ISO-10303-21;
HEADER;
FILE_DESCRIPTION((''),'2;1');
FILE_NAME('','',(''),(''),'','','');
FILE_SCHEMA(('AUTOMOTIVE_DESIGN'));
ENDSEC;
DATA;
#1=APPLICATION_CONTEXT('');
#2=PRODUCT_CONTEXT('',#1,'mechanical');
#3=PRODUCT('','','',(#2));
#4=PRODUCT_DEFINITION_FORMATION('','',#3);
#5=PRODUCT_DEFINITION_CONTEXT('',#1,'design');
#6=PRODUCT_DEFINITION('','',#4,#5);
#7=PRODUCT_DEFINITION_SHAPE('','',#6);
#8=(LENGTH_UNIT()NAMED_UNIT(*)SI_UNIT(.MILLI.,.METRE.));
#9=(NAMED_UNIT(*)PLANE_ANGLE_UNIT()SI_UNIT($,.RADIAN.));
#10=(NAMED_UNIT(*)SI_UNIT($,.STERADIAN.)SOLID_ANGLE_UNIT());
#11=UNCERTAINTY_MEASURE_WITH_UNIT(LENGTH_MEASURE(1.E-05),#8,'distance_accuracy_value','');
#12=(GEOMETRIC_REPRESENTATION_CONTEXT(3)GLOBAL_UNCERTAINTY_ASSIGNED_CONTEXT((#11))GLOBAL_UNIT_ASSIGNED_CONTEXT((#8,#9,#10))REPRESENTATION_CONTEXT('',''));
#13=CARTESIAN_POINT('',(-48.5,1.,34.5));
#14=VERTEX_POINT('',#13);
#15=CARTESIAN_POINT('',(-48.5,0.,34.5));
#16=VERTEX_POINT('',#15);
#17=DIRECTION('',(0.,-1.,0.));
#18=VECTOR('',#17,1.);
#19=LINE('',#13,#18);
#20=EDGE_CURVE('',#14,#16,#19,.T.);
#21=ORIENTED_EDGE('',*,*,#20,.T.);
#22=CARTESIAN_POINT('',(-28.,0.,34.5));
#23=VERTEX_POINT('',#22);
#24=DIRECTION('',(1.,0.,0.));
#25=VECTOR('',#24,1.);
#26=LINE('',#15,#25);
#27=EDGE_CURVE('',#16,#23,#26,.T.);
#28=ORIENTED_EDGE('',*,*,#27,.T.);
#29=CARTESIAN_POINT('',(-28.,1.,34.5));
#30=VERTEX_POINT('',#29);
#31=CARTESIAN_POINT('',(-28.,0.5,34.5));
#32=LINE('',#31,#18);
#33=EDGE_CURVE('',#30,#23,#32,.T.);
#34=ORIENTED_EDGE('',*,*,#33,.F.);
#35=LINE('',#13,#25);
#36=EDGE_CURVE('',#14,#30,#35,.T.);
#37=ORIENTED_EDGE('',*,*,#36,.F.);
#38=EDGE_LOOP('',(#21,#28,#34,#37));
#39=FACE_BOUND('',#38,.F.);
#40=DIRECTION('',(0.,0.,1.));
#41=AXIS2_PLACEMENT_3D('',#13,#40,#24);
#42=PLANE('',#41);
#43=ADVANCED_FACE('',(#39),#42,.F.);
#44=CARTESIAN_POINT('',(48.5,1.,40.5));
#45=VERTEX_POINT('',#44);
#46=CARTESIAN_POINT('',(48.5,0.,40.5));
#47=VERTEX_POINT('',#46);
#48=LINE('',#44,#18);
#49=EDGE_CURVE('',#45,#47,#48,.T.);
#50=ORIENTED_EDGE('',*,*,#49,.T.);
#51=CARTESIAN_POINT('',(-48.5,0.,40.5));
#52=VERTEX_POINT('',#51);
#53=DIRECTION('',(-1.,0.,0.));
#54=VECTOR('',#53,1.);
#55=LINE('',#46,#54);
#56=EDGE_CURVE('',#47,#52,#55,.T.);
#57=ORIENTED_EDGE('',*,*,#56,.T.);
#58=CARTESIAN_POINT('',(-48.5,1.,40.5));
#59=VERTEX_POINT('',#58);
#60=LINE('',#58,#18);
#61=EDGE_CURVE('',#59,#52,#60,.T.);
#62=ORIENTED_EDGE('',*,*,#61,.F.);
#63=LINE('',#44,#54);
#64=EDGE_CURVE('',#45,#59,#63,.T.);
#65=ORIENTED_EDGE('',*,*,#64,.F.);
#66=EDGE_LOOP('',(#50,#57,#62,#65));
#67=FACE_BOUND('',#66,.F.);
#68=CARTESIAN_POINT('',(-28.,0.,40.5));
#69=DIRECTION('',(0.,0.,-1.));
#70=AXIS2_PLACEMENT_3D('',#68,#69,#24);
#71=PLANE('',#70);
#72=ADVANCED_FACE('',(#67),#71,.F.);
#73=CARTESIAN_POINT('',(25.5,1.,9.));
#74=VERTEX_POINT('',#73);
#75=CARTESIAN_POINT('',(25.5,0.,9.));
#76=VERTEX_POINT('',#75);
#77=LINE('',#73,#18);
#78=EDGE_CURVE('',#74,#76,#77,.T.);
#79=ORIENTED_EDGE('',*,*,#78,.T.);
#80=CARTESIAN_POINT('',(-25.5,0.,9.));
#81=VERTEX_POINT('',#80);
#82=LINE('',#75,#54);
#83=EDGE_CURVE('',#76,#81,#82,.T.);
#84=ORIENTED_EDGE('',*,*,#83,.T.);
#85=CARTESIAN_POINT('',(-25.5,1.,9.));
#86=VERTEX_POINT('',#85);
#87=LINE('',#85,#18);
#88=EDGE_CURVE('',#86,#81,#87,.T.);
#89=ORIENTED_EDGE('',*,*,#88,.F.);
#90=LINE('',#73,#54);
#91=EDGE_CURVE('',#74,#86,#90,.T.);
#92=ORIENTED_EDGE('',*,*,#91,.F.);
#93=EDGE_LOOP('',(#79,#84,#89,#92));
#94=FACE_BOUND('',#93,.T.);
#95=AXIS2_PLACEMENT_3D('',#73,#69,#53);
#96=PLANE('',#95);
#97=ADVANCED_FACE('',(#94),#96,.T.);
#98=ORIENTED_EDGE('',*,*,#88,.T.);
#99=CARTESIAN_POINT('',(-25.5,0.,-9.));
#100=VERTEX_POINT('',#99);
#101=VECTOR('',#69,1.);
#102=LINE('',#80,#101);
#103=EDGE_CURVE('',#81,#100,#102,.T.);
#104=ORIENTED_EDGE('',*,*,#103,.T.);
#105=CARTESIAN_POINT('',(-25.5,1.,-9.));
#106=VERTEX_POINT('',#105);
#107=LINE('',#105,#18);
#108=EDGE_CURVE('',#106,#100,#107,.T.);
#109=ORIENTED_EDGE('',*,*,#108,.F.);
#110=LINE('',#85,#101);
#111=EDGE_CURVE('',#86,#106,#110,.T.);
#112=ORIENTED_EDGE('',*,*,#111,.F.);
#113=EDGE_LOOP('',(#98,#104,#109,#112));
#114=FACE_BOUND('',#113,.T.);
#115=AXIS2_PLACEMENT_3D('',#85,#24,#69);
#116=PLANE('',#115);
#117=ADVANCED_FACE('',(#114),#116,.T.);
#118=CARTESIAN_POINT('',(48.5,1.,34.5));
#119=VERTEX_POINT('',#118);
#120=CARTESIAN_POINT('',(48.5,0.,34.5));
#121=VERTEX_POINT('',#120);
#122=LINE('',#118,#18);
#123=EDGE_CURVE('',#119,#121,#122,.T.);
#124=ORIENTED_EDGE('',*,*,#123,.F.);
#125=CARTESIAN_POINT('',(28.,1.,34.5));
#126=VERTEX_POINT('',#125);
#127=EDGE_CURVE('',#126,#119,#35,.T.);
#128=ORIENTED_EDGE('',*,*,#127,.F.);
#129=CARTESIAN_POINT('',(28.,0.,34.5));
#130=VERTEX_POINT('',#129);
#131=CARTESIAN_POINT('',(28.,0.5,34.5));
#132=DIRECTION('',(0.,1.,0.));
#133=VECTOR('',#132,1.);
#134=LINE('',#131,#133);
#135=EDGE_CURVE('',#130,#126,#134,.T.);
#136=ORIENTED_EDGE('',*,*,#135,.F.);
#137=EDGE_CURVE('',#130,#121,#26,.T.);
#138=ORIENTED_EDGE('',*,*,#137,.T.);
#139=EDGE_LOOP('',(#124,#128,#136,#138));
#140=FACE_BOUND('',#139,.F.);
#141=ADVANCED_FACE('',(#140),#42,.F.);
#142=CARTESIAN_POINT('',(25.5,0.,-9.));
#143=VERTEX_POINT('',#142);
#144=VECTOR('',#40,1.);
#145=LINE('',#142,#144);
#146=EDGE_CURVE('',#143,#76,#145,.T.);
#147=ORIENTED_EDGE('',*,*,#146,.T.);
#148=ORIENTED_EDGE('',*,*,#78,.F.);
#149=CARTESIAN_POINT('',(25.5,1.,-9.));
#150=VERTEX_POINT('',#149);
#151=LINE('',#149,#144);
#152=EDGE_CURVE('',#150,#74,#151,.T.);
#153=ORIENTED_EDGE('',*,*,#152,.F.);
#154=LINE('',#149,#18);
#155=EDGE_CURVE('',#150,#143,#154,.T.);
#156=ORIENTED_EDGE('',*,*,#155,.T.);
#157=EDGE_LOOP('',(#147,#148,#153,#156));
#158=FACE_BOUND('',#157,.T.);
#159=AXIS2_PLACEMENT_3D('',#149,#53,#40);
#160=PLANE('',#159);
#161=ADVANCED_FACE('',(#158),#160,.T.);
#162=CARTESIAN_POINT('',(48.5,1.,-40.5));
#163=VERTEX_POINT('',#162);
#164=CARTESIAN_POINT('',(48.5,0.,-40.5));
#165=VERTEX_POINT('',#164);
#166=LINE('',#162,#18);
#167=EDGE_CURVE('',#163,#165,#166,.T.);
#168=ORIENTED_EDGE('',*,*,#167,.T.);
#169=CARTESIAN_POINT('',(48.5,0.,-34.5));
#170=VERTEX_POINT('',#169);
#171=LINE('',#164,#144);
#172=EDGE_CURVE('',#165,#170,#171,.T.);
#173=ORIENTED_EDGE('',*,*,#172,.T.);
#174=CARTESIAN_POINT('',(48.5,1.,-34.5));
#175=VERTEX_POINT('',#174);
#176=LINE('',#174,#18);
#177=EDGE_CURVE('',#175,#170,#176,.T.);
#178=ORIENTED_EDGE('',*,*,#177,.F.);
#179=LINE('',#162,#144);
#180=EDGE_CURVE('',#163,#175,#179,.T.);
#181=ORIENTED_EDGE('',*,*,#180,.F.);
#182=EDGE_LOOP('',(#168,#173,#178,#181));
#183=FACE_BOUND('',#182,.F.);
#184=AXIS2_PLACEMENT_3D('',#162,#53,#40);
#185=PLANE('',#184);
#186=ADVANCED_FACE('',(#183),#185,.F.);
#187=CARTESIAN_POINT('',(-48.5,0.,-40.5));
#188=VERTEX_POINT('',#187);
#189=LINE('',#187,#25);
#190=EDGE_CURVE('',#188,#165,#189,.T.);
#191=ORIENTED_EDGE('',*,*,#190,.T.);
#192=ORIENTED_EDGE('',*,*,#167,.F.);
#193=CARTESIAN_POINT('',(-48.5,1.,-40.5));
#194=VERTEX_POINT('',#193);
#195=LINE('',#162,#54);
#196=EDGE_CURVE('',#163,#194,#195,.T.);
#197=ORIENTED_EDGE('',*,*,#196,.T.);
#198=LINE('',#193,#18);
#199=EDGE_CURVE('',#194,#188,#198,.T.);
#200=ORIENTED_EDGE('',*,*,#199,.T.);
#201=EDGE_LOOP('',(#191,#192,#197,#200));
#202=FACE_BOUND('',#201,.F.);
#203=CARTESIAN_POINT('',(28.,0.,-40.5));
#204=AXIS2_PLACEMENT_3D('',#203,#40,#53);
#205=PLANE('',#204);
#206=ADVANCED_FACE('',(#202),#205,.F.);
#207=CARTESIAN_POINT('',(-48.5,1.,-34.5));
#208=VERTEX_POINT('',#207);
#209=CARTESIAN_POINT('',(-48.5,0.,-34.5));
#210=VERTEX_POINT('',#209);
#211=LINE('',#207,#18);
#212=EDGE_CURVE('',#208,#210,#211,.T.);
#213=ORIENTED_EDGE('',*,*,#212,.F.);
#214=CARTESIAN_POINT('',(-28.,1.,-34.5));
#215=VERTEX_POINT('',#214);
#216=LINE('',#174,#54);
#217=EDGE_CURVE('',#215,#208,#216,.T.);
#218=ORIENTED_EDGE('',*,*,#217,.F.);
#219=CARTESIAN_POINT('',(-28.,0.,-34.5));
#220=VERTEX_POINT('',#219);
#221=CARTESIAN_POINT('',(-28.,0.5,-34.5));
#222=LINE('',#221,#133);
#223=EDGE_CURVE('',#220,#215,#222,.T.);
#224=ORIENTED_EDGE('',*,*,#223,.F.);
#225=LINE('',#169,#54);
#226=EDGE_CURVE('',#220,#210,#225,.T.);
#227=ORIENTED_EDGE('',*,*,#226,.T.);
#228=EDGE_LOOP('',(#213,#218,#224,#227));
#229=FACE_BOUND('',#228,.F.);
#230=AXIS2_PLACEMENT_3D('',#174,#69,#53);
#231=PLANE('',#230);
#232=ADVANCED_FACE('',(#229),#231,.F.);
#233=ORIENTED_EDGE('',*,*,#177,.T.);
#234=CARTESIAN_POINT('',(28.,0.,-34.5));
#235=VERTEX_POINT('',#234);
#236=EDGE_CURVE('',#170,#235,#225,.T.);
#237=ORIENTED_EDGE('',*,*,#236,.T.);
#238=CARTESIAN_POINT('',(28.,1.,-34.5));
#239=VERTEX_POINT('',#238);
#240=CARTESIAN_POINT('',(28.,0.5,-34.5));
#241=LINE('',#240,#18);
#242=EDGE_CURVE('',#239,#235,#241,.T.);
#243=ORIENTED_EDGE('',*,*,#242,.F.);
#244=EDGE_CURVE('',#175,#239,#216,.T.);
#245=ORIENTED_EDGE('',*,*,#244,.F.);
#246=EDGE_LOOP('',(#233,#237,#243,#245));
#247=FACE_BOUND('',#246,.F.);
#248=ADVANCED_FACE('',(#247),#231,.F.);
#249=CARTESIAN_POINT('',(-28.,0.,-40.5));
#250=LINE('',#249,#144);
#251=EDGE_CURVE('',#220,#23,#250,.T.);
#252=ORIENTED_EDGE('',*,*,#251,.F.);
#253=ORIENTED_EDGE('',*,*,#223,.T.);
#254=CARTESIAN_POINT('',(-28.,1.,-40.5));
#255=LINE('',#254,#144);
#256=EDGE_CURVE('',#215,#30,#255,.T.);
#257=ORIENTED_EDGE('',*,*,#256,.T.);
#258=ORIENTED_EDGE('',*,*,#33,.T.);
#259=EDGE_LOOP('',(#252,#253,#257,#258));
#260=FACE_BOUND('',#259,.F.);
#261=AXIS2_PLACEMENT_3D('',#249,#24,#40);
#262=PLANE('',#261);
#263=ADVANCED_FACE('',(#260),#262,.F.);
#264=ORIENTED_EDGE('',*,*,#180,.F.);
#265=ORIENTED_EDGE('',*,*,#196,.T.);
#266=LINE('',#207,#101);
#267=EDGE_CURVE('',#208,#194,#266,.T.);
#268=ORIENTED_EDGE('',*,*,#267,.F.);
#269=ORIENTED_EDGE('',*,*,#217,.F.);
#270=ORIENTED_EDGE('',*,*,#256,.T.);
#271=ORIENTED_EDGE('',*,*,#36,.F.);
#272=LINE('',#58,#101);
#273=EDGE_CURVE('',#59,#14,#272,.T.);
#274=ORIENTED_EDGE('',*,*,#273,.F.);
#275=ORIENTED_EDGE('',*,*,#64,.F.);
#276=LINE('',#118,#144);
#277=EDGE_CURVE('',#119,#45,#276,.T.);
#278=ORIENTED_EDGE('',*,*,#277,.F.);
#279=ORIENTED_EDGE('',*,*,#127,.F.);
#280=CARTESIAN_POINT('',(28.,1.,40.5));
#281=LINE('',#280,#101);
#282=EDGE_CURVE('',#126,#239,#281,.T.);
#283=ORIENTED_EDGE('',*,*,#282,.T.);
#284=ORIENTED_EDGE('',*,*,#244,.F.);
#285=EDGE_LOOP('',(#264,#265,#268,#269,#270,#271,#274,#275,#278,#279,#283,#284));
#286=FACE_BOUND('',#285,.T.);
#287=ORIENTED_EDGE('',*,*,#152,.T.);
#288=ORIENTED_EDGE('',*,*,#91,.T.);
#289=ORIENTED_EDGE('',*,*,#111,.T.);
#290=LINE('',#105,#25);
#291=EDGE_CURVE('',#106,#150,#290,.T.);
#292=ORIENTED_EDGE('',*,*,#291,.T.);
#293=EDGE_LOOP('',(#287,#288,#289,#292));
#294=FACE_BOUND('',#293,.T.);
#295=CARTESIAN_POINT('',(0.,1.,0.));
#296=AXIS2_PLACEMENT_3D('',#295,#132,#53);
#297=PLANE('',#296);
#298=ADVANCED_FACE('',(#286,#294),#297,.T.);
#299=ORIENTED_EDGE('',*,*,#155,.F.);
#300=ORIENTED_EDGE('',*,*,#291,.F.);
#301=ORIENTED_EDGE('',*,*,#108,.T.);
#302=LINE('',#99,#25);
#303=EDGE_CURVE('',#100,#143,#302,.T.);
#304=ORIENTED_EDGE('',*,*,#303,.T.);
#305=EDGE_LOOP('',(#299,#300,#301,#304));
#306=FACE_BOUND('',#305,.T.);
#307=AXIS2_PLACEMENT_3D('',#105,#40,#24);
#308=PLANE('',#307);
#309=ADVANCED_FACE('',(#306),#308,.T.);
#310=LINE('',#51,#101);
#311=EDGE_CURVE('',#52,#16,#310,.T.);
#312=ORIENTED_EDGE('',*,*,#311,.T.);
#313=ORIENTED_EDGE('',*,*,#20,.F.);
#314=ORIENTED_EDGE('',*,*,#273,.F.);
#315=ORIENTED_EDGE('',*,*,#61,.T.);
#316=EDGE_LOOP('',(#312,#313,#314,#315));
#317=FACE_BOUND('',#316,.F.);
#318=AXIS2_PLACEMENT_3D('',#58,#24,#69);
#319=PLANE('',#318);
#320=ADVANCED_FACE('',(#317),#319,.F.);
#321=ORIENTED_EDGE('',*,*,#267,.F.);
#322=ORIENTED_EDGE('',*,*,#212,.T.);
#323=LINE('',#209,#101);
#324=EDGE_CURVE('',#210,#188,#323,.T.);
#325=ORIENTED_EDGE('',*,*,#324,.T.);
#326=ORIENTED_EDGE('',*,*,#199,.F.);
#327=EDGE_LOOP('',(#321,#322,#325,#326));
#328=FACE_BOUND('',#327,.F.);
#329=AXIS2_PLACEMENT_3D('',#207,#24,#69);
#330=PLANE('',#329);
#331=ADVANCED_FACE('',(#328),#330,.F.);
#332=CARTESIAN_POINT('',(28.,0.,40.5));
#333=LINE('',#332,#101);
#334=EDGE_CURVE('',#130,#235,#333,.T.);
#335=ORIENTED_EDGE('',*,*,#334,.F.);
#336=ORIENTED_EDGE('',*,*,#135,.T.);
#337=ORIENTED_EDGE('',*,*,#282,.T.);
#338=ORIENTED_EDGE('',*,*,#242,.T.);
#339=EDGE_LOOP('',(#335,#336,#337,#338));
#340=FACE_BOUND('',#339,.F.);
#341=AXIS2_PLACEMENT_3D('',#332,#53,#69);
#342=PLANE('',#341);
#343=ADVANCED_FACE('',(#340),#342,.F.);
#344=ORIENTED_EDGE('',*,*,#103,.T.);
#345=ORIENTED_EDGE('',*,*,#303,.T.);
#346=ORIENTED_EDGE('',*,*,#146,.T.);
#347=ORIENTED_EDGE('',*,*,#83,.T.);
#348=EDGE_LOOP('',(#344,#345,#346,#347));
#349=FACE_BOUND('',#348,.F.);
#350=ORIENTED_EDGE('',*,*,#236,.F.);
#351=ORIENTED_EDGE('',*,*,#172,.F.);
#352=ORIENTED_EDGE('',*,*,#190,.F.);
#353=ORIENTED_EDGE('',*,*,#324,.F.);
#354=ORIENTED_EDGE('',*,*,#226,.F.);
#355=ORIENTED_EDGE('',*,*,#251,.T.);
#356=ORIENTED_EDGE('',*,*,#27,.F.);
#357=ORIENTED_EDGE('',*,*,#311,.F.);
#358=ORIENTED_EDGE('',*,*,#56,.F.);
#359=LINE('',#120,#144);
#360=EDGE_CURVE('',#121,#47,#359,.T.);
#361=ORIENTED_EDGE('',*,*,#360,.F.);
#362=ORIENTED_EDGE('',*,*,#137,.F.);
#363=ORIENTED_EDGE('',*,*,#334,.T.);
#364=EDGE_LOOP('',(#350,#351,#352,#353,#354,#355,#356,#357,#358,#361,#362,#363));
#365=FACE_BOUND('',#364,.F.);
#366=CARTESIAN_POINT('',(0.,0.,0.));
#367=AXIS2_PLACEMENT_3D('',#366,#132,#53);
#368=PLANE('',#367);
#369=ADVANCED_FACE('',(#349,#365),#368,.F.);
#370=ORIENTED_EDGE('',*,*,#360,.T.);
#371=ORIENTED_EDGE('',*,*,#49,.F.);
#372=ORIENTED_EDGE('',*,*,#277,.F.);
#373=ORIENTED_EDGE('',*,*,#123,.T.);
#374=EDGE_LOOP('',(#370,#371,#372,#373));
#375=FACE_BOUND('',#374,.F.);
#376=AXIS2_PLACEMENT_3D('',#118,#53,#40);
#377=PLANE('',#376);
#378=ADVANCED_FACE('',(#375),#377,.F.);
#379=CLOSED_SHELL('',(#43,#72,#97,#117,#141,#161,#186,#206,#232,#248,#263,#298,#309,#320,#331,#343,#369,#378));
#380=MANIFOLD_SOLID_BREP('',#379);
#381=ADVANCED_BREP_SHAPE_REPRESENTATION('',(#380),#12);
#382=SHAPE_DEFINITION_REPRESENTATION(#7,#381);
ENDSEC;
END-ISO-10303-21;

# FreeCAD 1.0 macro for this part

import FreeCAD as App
import Part
import Sketcher
from FreeCAD import Vector
Q = App.Units.Quantity

doc = App.newDocument("Part")
params = doc.addObject("Spreadsheet::Sheet", "Params")
for row, (alias, value) in enumerate([
    ("sketch1_width", "56 mm"),
    ("sketch1_height", "81 mm"),
    ("pad1_length", "1 mm"),
    ("sketch2_width", "51 mm"),
    ("sketch2_height", "18 mm"),
    ("pocket1_length", "1 mm"),
    ("sketch3_width", "97 mm"),
    ("sketch3_height", "6 mm"),
    ("pad2_length", "1 mm"),
], start=1):
    params.set(f"A{row}", alias)
    params.set(f"B{row}", "=" + value)
    params.setAlias(f"B{row}", alias)

body = doc.addObject("PartDesign::Body", "Body")

sketch1 = doc.addObject("Sketcher::SketchObject", "Sketch")
body.addObject(sketch1)
sketch1.AttachmentSupport = (doc.XZ_Plane, [""])
sketch1.MapMode = "FlatFace"
sketch1.addGeometry(Part.LineSegment(Vector(28, 40, 0), Vector(28, -40, 0)), False)
sketch1.addGeometry(Part.LineSegment(Vector(28, -40, 0), Vector(-28, -40, 0)), False)
sketch1.addGeometry(Part.LineSegment(Vector(-28, -40, 0), Vector(-28, 40, 0)), False)
sketch1.addGeometry(Part.LineSegment(Vector(-28, 40, 0), Vector(28, 40, 0)), False)
sketch1.addConstraint(Sketcher.Constraint("Coincident", 0, 2, 1, 1))
sketch1.addConstraint(Sketcher.Constraint("Coincident", 1, 2, 2, 1))
sketch1.addConstraint(Sketcher.Constraint("Coincident", 2, 2, 3, 1))
sketch1.addConstraint(Sketcher.Constraint("Coincident", 3, 2, 0, 1))
sketch1.addConstraint(Sketcher.Constraint("Vertical", 0))
sketch1.addConstraint(Sketcher.Constraint("Horizontal", 1))
sketch1.addConstraint(Sketcher.Constraint("Vertical", 2))
sketch1.addConstraint(Sketcher.Constraint("Horizontal", 3))
sketch1.addConstraint(Sketcher.Constraint("Symmetric", 0, 2, 2, 2, -1, 1))
sketch1.addConstraint(Sketcher.Constraint("DistanceX", 1, 2, 1, 1, Q("56 mm")))
sketch1.addConstraint(Sketcher.Constraint("DistanceY", 0, 2, 0, 1, Q("81 mm")))
sketch1.setExpression("Constraints[9]", "Params.sketch1_width")
sketch1.setExpression("Constraints[10]", "Params.sketch1_height")
pad1 = doc.addObject("PartDesign::Pad", "Pad")
body.addObject(pad1)
pad1.Profile = sketch1
pad1.setExpression("Length", "Params.pad1_length")
pad1.Reversed = True

sketch2 = doc.addObject("Sketcher::SketchObject", "Sketch001")
body.addObject(sketch2)
sketch2.AttachmentSupport = (doc.XZ_Plane, [""])
sketch2.MapMode = "FlatFace"
sketch2.AttachmentOffset = App.Placement(Vector(0, 0, -1), App.Rotation())
sketch2.addGeometry(Part.LineSegment(Vector(26, -9, 0), Vector(-26, -9, 0)), False)
sketch2.addGeometry(Part.LineSegment(Vector(-26, -9, 0), Vector(-26, 9, 0)), False)
sketch2.addGeometry(Part.LineSegment(Vector(-26, 9, 0), Vector(26, 9, 0)), False)
sketch2.addGeometry(Part.LineSegment(Vector(26, 9, 0), Vector(26, -9, 0)), False)
sketch2.addConstraint(Sketcher.Constraint("Coincident", 0, 2, 1, 1))
sketch2.addConstraint(Sketcher.Constraint("Coincident", 1, 2, 2, 1))
sketch2.addConstraint(Sketcher.Constraint("Coincident", 2, 2, 3, 1))
sketch2.addConstraint(Sketcher.Constraint("Coincident", 3, 2, 0, 1))
sketch2.addConstraint(Sketcher.Constraint("Horizontal", 0))
sketch2.addConstraint(Sketcher.Constraint("Vertical", 1))
sketch2.addConstraint(Sketcher.Constraint("Horizontal", 2))
sketch2.addConstraint(Sketcher.Constraint("Vertical", 3))
sketch2.addConstraint(Sketcher.Constraint("Symmetric", 0, 2, 2, 2, -1, 1))
sketch2.addConstraint(Sketcher.Constraint("DistanceX", 0, 2, 0, 1, Q("51 mm")))
sketch2.addConstraint(Sketcher.Constraint("DistanceY", 1, 1, 1, 2, Q("18 mm")))
sketch2.setExpression("Constraints[9]", "Params.sketch2_width")
sketch2.setExpression("Constraints[10]", "Params.sketch2_height")
pocket1 = doc.addObject("PartDesign::Pocket", "Pocket")
body.addObject(pocket1)
pocket1.Profile = sketch2
pocket1.setExpression("Length", "Params.pocket1_length")
pocket1.Reversed = True

sketch3 = doc.addObject("Sketcher::SketchObject", "Sketch002")
body.addObject(sketch3)
sketch3.AttachmentSupport = (doc.XZ_Plane, [""])
sketch3.MapMode = "FlatFace"
sketch3.AttachmentOffset = App.Placement(Vector(0, 0, -1), App.Rotation())
sketch3.addGeometry(Part.LineSegment(Vector(48, 34, 0), Vector(-48, 34, 0)), False)
sketch3.addGeometry(Part.LineSegment(Vector(-48, 34, 0), Vector(-48, 40, 0)), False)
sketch3.addGeometry(Part.LineSegment(Vector(-48, 40, 0), Vector(48, 40, 0)), False)
sketch3.addGeometry(Part.LineSegment(Vector(48, 40, 0), Vector(48, 34, 0)), False)
sketch3.addGeometry(Part.LineSegment(Vector(48, -40, 0), Vector(-48, -40, 0)), False)
sketch3.addGeometry(Part.LineSegment(Vector(-48, -40, 0), Vector(-48, -34, 0)), False)
sketch3.addGeometry(Part.LineSegment(Vector(-48, -34, 0), Vector(48, -34, 0)), False)
sketch3.addGeometry(Part.LineSegment(Vector(48, -34, 0), Vector(48, -40, 0)), False)
sketch3.addConstraint(Sketcher.Constraint("Coincident", 0, 2, 1, 1))
sketch3.addConstraint(Sketcher.Constraint("Coincident", 1, 2, 2, 1))
sketch3.addConstraint(Sketcher.Constraint("Coincident", 2, 2, 3, 1))
sketch3.addConstraint(Sketcher.Constraint("Coincident", 3, 2, 0, 1))
sketch3.addConstraint(Sketcher.Constraint("Coincident", 4, 2, 5, 1))
sketch3.addConstraint(Sketcher.Constraint("Coincident", 5, 2, 6, 1))
sketch3.addConstraint(Sketcher.Constraint("Coincident", 6, 2, 7, 1))
sketch3.addConstraint(Sketcher.Constraint("Coincident", 7, 2, 4, 1))
sketch3.addConstraint(Sketcher.Constraint("Horizontal", 0))
sketch3.addConstraint(Sketcher.Constraint("Vertical", 1))
sketch3.addConstraint(Sketcher.Constraint("Horizontal", 2))
sketch3.addConstraint(Sketcher.Constraint("Vertical", 3))
sketch3.addConstraint(Sketcher.Constraint("Horizontal", 4))
sketch3.addConstraint(Sketcher.Constraint("Vertical", 5))
sketch3.addConstraint(Sketcher.Constraint("Horizontal", 6))
sketch3.addConstraint(Sketcher.Constraint("Vertical", 7))
sketch3.addConstraint(Sketcher.Constraint("Symmetric", 2, 2, 4, 2, -1, 1))
sketch3.addConstraint(Sketcher.Constraint("Symmetric", 0, 2, 6, 2, -1, 1))
sketch3.addConstraint(Sketcher.Constraint("Vertical", 1, 2, 4, 2))
sketch3.addConstraint(Sketcher.Constraint("DistanceX", 0, 2, 0, 1, Q("97 mm")))
sketch3.addConstraint(Sketcher.Constraint("DistanceY", 1, 1, 1, 2, Q("6 mm")))
sketch3.addConstraint(Sketcher.Constraint("DistanceY", 4, 2, 0, 2, Q("75 mm")))
sketch3.setExpression("Constraints[19]", "Params.sketch3_width")
sketch3.setExpression("Constraints[20]", "Params.sketch3_height")
pad2 = doc.addObject("PartDesign::Pad", "Pad001")
body.addObject(pad2)
pad2.Profile = sketch3
pad2.setExpression("Length", "Params.pad2_length")

doc.recompute()
